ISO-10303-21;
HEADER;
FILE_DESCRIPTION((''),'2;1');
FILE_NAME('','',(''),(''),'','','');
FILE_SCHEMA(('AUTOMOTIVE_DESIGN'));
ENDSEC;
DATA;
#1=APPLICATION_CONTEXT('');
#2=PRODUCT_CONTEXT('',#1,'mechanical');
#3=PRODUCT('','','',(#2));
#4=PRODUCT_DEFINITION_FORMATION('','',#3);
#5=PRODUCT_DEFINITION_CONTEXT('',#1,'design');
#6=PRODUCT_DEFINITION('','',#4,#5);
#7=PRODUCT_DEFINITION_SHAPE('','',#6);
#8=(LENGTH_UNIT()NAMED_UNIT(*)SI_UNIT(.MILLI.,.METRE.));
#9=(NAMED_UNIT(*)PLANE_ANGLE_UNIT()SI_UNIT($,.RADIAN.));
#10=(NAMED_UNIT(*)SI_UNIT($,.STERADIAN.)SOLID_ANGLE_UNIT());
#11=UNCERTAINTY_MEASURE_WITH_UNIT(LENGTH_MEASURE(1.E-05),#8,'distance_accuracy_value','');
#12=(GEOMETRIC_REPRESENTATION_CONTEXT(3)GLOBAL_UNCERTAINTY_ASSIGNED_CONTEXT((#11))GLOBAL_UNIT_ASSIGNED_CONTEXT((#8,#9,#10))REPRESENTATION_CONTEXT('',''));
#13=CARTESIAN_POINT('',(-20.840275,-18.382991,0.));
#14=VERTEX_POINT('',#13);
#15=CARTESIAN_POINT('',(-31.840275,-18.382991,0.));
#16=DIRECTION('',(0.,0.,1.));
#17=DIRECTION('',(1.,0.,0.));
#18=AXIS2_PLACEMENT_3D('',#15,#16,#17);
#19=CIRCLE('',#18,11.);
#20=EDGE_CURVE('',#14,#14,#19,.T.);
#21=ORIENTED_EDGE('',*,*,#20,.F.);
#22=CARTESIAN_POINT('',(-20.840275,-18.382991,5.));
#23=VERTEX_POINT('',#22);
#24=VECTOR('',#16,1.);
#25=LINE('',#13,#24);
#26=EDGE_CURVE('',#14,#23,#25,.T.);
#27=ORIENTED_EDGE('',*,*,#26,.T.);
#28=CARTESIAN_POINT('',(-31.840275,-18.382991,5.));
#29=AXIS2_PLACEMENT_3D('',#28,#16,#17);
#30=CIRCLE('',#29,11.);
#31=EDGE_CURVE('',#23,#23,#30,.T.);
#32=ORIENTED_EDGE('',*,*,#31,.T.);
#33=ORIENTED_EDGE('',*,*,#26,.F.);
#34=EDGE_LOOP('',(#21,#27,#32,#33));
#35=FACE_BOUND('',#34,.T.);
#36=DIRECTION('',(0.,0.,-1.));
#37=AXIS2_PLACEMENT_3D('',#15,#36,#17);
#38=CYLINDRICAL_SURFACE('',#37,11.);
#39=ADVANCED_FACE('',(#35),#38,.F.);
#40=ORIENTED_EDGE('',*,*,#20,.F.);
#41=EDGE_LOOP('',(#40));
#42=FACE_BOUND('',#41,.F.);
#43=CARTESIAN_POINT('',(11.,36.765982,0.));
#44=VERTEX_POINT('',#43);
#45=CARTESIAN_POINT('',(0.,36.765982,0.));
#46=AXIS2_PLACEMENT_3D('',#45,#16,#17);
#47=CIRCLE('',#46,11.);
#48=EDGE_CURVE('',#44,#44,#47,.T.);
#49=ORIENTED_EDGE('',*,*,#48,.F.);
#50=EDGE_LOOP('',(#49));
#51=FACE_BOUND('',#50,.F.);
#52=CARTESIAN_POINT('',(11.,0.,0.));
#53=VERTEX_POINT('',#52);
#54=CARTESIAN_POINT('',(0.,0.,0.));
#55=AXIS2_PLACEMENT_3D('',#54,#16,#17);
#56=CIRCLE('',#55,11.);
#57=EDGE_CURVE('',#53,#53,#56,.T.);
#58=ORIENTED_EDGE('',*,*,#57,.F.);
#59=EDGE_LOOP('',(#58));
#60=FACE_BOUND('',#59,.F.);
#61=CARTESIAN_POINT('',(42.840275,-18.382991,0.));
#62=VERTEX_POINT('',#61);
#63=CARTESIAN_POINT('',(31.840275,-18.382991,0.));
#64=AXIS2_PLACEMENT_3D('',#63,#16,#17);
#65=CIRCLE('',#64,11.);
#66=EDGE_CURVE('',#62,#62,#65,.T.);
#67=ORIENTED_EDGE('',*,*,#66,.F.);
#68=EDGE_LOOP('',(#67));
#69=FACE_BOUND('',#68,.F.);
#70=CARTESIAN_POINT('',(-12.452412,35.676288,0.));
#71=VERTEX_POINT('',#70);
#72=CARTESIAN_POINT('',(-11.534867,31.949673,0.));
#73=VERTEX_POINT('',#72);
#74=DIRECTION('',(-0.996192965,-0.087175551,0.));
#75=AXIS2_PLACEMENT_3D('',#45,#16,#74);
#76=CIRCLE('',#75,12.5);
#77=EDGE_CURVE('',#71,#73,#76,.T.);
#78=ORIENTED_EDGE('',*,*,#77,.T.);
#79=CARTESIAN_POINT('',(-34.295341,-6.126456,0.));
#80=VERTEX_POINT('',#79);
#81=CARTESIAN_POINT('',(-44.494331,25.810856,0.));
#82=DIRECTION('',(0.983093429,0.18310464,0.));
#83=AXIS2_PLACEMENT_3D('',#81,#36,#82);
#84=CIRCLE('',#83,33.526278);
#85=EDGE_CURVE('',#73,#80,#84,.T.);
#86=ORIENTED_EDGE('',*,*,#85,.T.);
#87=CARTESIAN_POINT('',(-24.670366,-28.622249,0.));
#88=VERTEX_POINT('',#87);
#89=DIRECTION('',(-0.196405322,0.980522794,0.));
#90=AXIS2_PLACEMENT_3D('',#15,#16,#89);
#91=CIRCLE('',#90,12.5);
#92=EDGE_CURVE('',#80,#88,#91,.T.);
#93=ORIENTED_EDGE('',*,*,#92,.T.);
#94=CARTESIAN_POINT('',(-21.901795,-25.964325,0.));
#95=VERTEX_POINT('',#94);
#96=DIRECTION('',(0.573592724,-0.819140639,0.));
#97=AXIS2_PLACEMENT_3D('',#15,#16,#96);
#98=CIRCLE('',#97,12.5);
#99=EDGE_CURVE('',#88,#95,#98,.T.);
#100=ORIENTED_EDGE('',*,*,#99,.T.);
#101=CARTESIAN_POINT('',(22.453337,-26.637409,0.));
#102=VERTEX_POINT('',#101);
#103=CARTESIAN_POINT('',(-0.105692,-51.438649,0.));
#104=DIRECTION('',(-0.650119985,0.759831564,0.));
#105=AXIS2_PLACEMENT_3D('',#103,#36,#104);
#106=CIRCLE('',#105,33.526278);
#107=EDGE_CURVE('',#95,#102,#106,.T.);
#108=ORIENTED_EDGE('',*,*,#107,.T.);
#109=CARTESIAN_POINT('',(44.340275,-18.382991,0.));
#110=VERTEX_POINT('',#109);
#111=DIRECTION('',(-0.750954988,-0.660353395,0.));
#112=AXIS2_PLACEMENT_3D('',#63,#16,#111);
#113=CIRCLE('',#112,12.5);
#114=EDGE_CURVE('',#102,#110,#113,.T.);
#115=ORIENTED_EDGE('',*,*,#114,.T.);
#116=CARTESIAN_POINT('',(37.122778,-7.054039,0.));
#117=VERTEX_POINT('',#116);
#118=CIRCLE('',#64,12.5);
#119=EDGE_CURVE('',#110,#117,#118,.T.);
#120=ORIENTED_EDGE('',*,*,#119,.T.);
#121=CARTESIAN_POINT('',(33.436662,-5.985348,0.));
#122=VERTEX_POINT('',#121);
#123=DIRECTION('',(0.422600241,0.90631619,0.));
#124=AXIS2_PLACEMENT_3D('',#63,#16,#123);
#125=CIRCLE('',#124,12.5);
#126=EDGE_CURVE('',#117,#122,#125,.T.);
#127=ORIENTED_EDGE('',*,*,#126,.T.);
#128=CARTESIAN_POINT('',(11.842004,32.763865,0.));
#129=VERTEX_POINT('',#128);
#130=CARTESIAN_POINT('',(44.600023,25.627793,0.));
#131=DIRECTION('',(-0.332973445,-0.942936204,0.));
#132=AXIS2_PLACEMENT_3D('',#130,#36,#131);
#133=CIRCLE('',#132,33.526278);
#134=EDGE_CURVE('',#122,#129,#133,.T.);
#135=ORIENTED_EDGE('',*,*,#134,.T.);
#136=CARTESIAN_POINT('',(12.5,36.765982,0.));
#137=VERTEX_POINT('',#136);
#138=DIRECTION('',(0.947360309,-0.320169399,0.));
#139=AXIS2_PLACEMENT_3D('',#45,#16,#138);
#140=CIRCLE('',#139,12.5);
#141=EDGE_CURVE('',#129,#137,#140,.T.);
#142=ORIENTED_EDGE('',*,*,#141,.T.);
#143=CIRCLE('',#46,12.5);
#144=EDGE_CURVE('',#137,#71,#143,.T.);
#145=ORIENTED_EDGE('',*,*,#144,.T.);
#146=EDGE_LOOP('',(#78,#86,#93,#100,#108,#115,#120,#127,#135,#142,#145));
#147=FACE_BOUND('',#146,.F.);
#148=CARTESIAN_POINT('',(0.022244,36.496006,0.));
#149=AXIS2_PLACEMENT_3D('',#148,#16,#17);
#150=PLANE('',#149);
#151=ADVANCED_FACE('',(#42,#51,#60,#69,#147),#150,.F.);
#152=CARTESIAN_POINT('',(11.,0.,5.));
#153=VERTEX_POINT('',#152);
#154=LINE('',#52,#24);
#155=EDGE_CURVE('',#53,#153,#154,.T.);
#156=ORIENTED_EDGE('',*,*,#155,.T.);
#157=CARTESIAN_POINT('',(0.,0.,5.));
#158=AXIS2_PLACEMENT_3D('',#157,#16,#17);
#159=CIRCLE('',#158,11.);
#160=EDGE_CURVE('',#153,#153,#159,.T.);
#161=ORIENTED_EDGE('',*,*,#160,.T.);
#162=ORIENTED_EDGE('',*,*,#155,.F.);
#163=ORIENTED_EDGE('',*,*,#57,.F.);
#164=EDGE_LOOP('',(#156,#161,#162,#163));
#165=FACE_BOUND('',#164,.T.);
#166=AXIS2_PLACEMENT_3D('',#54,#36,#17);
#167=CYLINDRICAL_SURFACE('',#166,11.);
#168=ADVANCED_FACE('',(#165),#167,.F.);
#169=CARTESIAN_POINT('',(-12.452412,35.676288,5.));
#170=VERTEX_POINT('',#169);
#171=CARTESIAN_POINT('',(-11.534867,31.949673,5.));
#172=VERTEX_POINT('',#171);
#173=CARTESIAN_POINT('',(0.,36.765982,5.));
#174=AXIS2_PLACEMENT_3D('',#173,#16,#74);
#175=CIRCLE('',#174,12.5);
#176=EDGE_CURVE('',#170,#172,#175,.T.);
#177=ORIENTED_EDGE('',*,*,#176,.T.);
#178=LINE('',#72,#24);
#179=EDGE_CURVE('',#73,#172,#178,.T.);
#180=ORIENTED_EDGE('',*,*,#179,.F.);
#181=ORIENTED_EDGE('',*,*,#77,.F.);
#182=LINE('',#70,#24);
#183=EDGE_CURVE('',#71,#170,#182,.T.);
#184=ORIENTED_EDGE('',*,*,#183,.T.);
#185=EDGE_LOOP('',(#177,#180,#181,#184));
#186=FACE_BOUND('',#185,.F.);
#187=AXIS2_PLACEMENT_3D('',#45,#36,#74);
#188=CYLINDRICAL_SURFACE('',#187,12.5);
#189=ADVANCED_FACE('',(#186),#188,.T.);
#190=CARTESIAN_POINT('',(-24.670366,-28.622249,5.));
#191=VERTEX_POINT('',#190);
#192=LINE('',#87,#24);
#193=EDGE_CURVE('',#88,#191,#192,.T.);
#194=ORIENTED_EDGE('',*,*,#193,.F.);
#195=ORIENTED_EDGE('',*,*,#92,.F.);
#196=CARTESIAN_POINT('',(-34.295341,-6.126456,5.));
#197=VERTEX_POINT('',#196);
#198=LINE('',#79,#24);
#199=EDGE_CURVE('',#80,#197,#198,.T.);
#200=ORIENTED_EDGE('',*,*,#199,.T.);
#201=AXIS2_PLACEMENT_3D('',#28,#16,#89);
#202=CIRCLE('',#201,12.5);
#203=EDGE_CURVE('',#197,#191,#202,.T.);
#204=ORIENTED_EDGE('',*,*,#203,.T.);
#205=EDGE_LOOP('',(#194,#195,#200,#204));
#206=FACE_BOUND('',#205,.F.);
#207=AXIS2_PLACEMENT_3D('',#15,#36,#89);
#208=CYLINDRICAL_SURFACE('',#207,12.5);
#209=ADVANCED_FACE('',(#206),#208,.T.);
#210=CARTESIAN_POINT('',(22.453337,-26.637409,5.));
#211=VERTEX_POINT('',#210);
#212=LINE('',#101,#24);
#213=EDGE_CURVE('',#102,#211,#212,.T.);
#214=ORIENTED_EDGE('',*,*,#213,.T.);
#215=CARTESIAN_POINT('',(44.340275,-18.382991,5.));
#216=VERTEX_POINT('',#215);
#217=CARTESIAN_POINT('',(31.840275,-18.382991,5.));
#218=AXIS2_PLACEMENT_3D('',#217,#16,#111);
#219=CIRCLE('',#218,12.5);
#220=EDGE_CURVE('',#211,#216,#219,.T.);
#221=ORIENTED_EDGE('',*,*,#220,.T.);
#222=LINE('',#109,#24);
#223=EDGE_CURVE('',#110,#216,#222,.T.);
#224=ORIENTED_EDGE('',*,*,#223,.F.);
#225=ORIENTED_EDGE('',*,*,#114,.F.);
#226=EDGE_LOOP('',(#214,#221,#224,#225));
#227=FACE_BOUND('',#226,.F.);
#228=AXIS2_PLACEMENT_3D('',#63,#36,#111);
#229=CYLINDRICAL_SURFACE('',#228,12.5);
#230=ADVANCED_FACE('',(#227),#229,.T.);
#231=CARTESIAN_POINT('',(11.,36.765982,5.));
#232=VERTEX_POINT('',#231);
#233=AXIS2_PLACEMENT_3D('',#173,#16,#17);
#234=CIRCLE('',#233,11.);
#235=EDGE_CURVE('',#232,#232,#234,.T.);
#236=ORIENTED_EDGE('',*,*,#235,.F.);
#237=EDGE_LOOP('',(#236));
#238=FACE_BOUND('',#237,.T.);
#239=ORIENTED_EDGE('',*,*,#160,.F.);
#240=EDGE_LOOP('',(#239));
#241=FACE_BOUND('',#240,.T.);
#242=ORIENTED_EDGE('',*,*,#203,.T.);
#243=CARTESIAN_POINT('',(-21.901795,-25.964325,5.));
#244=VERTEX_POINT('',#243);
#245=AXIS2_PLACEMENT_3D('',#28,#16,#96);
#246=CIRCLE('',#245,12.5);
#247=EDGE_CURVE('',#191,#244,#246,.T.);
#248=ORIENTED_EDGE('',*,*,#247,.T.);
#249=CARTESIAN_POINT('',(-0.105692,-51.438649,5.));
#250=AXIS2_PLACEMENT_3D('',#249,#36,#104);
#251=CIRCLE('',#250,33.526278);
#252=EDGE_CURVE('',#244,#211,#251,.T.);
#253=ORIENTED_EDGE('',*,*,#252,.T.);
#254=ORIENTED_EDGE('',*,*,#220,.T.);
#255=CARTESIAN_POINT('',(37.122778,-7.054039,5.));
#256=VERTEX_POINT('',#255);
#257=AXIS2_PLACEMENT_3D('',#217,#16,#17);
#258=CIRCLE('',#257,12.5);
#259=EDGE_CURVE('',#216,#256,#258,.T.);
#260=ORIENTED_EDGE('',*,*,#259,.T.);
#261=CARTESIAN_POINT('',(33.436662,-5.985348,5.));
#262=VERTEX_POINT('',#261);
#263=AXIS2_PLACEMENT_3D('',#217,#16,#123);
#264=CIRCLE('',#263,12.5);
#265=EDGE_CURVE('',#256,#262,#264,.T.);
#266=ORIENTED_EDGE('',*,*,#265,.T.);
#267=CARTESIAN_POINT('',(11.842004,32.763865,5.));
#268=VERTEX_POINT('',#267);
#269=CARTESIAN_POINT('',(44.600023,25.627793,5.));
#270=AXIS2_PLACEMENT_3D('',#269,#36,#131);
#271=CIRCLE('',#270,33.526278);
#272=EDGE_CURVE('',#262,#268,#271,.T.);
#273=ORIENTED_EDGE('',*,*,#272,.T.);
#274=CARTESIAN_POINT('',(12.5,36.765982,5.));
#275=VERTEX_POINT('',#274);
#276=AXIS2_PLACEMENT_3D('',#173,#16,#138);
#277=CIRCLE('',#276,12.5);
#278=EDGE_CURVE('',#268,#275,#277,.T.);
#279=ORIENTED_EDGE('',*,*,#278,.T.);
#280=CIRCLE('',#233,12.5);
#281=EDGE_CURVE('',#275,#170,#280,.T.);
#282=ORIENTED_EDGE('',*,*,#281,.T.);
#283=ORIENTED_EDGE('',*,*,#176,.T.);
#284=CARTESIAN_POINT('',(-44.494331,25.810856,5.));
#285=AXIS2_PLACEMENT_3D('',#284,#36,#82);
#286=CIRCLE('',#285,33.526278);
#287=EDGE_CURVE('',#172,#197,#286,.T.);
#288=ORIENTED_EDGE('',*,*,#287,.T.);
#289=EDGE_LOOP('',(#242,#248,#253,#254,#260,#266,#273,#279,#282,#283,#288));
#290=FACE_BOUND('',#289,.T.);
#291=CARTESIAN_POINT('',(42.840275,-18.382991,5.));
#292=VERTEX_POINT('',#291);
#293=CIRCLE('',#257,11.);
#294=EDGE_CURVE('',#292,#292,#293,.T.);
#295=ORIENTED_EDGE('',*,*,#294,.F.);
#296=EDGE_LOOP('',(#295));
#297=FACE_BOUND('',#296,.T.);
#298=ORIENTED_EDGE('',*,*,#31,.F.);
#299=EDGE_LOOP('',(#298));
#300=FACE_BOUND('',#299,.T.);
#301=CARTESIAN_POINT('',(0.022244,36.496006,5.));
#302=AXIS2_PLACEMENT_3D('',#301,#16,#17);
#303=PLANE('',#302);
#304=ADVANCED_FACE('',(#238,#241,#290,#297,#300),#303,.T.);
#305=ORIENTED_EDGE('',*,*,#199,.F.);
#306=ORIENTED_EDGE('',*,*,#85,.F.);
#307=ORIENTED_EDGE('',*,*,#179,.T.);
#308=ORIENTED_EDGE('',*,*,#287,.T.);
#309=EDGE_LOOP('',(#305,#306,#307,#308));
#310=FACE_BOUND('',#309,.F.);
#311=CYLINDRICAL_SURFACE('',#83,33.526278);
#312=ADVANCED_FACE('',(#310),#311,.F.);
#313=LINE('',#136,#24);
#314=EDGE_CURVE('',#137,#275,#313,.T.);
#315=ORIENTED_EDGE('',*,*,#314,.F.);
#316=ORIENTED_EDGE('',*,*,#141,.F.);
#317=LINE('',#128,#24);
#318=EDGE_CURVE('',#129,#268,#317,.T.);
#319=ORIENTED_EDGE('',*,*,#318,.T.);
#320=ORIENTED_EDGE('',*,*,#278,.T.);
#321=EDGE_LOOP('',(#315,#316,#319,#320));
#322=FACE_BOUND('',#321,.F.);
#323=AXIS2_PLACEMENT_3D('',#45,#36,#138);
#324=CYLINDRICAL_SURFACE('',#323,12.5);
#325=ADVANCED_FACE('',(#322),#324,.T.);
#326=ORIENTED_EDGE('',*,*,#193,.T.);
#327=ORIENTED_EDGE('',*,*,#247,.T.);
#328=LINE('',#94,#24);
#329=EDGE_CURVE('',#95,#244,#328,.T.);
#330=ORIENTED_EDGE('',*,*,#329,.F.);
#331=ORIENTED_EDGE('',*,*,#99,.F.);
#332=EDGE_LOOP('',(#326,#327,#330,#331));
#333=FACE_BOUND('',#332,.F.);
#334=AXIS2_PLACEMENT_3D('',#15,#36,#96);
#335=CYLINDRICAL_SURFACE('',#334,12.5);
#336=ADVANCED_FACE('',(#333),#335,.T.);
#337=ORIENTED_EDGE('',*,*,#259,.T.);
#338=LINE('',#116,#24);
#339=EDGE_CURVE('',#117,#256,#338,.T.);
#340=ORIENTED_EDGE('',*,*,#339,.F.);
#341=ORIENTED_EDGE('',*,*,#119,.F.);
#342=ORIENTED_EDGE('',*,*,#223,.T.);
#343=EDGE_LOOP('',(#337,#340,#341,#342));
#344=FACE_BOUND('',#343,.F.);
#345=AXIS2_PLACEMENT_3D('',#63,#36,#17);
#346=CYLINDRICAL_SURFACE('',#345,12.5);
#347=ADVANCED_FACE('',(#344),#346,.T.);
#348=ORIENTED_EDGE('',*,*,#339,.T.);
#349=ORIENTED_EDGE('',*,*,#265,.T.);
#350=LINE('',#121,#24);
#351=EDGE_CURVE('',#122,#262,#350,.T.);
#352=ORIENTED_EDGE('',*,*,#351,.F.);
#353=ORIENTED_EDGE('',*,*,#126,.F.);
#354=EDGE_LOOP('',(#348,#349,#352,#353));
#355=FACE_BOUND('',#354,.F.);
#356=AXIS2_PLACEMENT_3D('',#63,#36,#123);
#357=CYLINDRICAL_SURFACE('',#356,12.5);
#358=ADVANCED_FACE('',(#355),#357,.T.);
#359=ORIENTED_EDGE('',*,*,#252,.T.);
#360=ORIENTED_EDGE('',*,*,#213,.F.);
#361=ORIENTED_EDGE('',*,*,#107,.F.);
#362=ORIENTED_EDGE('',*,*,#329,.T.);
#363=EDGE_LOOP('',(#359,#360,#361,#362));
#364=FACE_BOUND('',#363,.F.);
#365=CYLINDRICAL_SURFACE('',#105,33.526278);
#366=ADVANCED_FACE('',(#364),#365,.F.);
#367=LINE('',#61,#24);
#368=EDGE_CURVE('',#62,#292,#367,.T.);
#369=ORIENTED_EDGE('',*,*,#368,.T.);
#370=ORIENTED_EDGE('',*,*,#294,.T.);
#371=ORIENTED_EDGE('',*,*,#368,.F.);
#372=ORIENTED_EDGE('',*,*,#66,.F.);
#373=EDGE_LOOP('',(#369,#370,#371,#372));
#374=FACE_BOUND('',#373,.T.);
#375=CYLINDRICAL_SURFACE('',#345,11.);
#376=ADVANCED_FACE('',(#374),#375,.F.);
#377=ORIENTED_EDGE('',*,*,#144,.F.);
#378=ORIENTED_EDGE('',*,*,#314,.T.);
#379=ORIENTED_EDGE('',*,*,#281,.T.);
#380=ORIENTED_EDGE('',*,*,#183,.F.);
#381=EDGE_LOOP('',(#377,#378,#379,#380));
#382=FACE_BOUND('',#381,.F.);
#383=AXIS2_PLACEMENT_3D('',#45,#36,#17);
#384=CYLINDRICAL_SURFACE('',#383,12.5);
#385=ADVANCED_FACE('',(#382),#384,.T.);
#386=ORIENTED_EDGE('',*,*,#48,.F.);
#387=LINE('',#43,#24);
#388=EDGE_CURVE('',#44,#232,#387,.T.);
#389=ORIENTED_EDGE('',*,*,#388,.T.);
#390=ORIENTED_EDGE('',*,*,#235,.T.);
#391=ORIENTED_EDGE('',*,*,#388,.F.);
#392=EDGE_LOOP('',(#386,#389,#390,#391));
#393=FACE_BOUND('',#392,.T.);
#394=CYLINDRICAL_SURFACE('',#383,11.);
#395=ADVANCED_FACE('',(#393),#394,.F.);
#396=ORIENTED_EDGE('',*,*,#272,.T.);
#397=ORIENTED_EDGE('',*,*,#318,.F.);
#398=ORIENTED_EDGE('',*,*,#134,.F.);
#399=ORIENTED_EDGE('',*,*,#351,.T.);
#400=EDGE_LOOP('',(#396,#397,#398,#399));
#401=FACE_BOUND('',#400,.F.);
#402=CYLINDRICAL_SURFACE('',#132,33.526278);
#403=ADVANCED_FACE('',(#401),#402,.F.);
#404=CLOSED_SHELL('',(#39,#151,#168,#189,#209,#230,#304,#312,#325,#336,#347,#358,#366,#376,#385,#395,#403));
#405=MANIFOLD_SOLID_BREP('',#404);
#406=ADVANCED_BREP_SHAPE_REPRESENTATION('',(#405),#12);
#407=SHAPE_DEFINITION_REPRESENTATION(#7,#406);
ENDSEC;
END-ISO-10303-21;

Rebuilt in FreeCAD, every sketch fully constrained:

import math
import FreeCAD as App
import Part
import Sketcher

V = App.Vector
Q = App.Units.Quantity

doc = App.newDocument("Part")
params = doc.addObject("Spreadsheet::Sheet", "Params")
for row, (alias, value) in enumerate([
    ("sketch1_diameter", "22 mm"),
    ("sketch1_radius", "12.5 mm"),
    ("pad1_length", "5 mm"),
], start=1):
    params.set(f"A{row}", alias)
    params.set(f"B{row}", "=" + value)
    params.setAlias(f"B{row}", alias)

body = doc.addObject("PartDesign::Body", "Body")

sketch1 = body.newObject("Sketcher::SketchObject", "Sketch")
sketch1.AttachmentSupport = (doc.getObject("XY_Plane"), [""])
sketch1.MapMode = "FlatFace"
sketch1.addGeometry([
    Part.ArcOfCircle(Part.Circle(V(0, 36.8, 0), V(0, 0, 1), 12.5), math.radians(-18.67), math.radians(0)),
    Part.ArcOfCircle(Part.Circle(V(0, 36.8, 0), V(0, 0, 1), 12.5), math.radians(0), math.radians(185)),
    Part.ArcOfCircle(Part.Circle(V(0, 36.8, 0), V(0, 0, 1), 12.5), math.radians(-175), math.radians(-157.34)),
    Part.ArcOfCircle(Part.Circle(V(-44.5, 25.8, 0), V(0, 0, 1), 33.5), math.radians(-72), math.radians(11)),
    Part.ArcOfCircle(Part.Circle(V(-31.8, -18.4, 0), V(0, 0, 1), 12.5), math.radians(101), math.radians(305)),
    Part.ArcOfCircle(Part.Circle(V(-31.8, -18.4, 0), V(0, 0, 1), 12.5), math.radians(-55), math.radians(-37.34)),
    Part.ArcOfCircle(Part.Circle(V(-0.1, -51.4, 0), V(0, 0, 1), 33.5), math.radians(48), math.radians(131)),
    Part.ArcOfCircle(Part.Circle(V(31.8, -18.4, 0), V(0, 0, 1), 12.5), math.radians(-139), math.radians(0)),
    Part.ArcOfCircle(Part.Circle(V(31.8, -18.4, 0), V(0, 0, 1), 12.5), math.radians(0), math.radians(65)),
    Part.ArcOfCircle(Part.Circle(V(31.8, -18.4, 0), V(0, 0, 1), 12.5), math.radians(65), math.radians(82.66)),
    Part.ArcOfCircle(Part.Circle(V(44.6, 25.6, 0), V(0, 0, 1), 33.5), math.radians(168), math.radians(251)),
    Part.Circle(V(-31.8, -18.4, 0), V(0, 0, 1), 11),
    Part.Circle(V(31.8, -18.4, 0), V(0, 0, 1), 11),
    Part.Circle(V(0, 0, 0), V(0, 0, 1), 11),
    Part.Circle(V(0, 36.8, 0), V(0, 0, 1), 11),
], False)
sketch1.addConstraint([
    Sketcher.Constraint("Tangent", 0, 2, 1, 1),
    Sketcher.Constraint("Tangent", 1, 2, 2, 1),
    Sketcher.Constraint("Coincident", 2, 2, 3, 2),
    Sketcher.Constraint("Coincident", 3, 1, 4, 1),
    Sketcher.Constraint("Tangent", 4, 2, 5, 1),
    Sketcher.Constraint("Coincident", 5, 2, 6, 2),
    Sketcher.Constraint("Coincident", 6, 1, 7, 1),
    Sketcher.Constraint("Tangent", 7, 2, 8, 1),
    Sketcher.Constraint("Tangent", 8, 2, 9, 1),
    Sketcher.Constraint("Coincident", 9, 2, 10, 2),
    Sketcher.Constraint("Coincident", 10, 1, 0, 1),
    Sketcher.Constraint("Coincident", 13, 3, -1, 1),
    Sketcher.Constraint("Coincident", 2, 3, 0, 3),
    Sketcher.Constraint("Coincident", 9, 3, 7, 3),
    Sketcher.Constraint("Coincident", 11, 3, 4, 3),
    Sketcher.Constraint("Coincident", 12, 3, 7, 3),
    Sketcher.Constraint("Coincident", 14, 3, 0, 3),
    Sketcher.Constraint("Equal", 2, 4),
    Sketcher.Constraint("Equal", 4, 5),
    Sketcher.Constraint("Equal", 3, 6),
    Sketcher.Constraint("Equal", 5, 7),
    Sketcher.Constraint("Equal", 6, 10),
    Sketcher.Constraint("Equal", 11, 12),
    Sketcher.Constraint("Equal", 12, 13),
    Sketcher.Constraint("Equal", 13, 14),
    Sketcher.Constraint("Symmetric", 4, 3, 7, 3, -2),
    Sketcher.Constraint("PointOnObject", 0, 3, -2),
    Sketcher.Constraint("Horizontal", 14, 3, 0, 2),
    Sketcher.Constraint("Horizontal", 12, 3, 7, 2),
    Sketcher.Constraint("Diameter", 11, Q("22 mm")),
    Sketcher.Constraint("Radius", 0, Q("12.5 mm")),
    Sketcher.Constraint("Radius", 3, Q("33.526278 mm")),
    Sketcher.Constraint("DistanceY", 6, 3, 4, 2, Q("22.8164 mm")),
    Sketcher.Constraint("DistanceX", 3, 3, -1, 1, Q("44.494331 mm")),
    Sketcher.Constraint("DistanceY", 4, 3, -1, 1, Q("18.382991 mm")),
    Sketcher.Constraint("DistanceX", 6, 3, -1, 1, Q("0.105692 mm")),
    Sketcher.Constraint("DistanceY", 6, 3, -1, 1, Q("51.438649 mm")),
    Sketcher.Constraint("DistanceX", 3, 1, -1, 1, Q("34.295341 mm")),
    Sketcher.Constraint("DistanceY", 6, 1, -1, 1, Q("26.637409 mm")),
    Sketcher.Constraint("DistanceY", 8, 2, -1, 1, Q("7.054039 mm")),
    Sketcher.Constraint("DistanceY", 9, 2, -1, 1, Q("5.985348 mm")),
    Sketcher.Constraint("DistanceY", 6, 3, 2, 3, Q("88.204631 mm")),
    Sketcher.Constraint("DistanceY", 10, 3, 0, 3, Q("11.138189 mm")),
    Sketcher.Constraint("DistanceX", 1, 2, -1, 1, Q("12.452412 mm")),
])
sketch1.setExpression("Constraints[29]", "Params.sketch1_diameter")
sketch1.setExpression("Constraints[30]", "Params.sketch1_radius")
pad1 = body.newObject("PartDesign::Pad", "Pad")
pad1.Profile = sketch1
pad1.setExpression("Length", "Params.pad1_length")

doc.recompute()
